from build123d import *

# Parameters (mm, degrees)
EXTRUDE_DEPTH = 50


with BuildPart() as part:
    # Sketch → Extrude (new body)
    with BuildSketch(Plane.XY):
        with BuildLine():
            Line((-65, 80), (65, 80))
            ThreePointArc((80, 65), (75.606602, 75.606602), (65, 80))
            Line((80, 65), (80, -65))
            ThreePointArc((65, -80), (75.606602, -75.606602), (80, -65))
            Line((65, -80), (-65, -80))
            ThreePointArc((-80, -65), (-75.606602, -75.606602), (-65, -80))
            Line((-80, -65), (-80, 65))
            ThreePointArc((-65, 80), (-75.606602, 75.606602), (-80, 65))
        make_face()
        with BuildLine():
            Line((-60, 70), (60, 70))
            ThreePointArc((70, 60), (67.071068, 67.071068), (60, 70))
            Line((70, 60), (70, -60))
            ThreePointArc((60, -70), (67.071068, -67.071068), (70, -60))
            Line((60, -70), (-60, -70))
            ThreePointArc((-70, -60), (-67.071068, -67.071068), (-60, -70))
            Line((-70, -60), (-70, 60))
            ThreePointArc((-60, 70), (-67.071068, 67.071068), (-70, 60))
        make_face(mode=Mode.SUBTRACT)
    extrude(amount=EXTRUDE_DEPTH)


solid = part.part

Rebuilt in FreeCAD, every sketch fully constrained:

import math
import FreeCAD as App
import Part
import Sketcher

V = App.Vector

doc = App.newDocument("Part")
body = doc.addObject("PartDesign::Body", "Body")

sketch1 = body.newObject("Sketcher::SketchObject", "Sketch")
sketch1.AttachmentSupport = (doc.getObject("XY_Plane"), [""])
sketch1.MapMode = "FlatFace"
sketch1.addGeometry([
    Part.LineSegment(V(65, 80, 0), V(-65, 80, 0)),
    Part.ArcOfCircle(Part.Circle(V(-65, 65, 0), V(0, 0, 1), 15), math.radians(90), math.radians(180)),
    Part.LineSegment(V(-80, 65, 0), V(-80, -65, 0)),
    Part.ArcOfCircle(Part.Circle(V(-65, -65, 0), V(0, 0, 1), 15), math.radians(180), math.radians(270)),
    Part.LineSegment(V(-65, -80, 0), V(65, -80, 0)),
    Part.ArcOfCircle(Part.Circle(V(65, -65, 0), V(0, 0, 1), 15), math.radians(-90), math.radians(0)),
    Part.LineSegment(V(80, -65, 0), V(80, 65, 0)),
    Part.ArcOfCircle(Part.Circle(V(65, 65, 0), V(0, 0, 1), 15), math.radians(0), math.radians(90)),
    Part.LineSegment(V(-60, 70, 0), V(60, 70, 0)),
    Part.ArcOfCircle(Part.Circle(V(60, 60, 0), V(0, 0, 1), 10), math.radians(0), math.radians(90)),
    Part.LineSegment(V(70, 60, 0), V(70, -60, 0)),
    Part.ArcOfCircle(Part.Circle(V(60, -60, 0), V(0, 0, 1), 10), math.radians(-90), math.radians(0)),
    Part.LineSegment(V(60, -70, 0), V(-60, -70, 0)),
    Part.ArcOfCircle(Part.Circle(V(-60, -60, 0), V(0, 0, 1), 10), math.radians(180), math.radians(270)),
    Part.LineSegment(V(-70, -60, 0), V(-70, 60, 0)),
    Part.ArcOfCircle(Part.Circle(V(-60, 60, 0), V(0, 0, 1), 10), math.radians(90), math.radians(180)),
], False)
sketch1.addConstraint([
    Sketcher.Constraint("Tangent", 0, 2, 1, 1),
    Sketcher.Constraint("Tangent", 1, 2, 2, 1),
    Sketcher.Constraint("Tangent", 2, 2, 3, 1),
    Sketcher.Constraint("Tangent", 3, 2, 4, 1),
    Sketcher.Constraint("Tangent", 4, 2, 5, 1),
    Sketcher.Constraint("Tangent", 5, 2, 6, 1),
    Sketcher.Constraint("Tangent", 6, 2, 7, 1),
    Sketcher.Constraint("Tangent", 7, 2, 0, 1),
    Sketcher.Constraint("Tangent", 8, 2, 9, 2),
    Sketcher.Constraint("Tangent", 9, 1, 10, 1),
    Sketcher.Constraint("Tangent", 10, 2, 11, 2),
    Sketcher.Constraint("Tangent", 11, 1, 12, 1),
    Sketcher.Constraint("Tangent", 12, 2, 13, 2),
    Sketcher.Constraint("Tangent", 13, 1, 14, 1),
    Sketcher.Constraint("Tangent", 14, 2, 15, 2),
    Sketcher.Constraint("Tangent", 15, 1, 8, 1),
    Sketcher.Constraint("Horizontal", 0),
    Sketcher.Constraint("Vertical", 2),
    Sketcher.Constraint("Horizontal", 4),
    Sketcher.Constraint("Vertical", 6),
    Sketcher.Constraint("Horizontal", 8),
    Sketcher.Constraint("Vertical", 10),
    Sketcher.Constraint("Horizontal", 12),
    Sketcher.Constraint("Vertical", 14),
    Sketcher.Constraint("Equal", 1, 3),
    Sketcher.Constraint("Equal", 3, 5),
    Sketcher.Constraint("Equal", 5, 7),
    Sketcher.Constraint("Equal", 9, 11),
    Sketcher.Constraint("Equal", 11, 13),
    Sketcher.Constraint("Equal", 13, 15),
    Sketcher.Constraint("Symmetric", 1, 3, 5, 3, -1, 1),
    Sketcher.Constraint("Symmetric", 9, 3, 13, 3, -1, 1),
    Sketcher.Constraint("Equal", 4, 2),
    Sketcher.Constraint("Equal", 12, 10),
    Sketcher.Constraint("Radius", 1, 14.999999),
    Sketcher.Constraint("Radius", 9, 9.999999),
    Sketcher.Constraint("DistanceX", 0, 2, 0, 1, 130.0),
    Sketcher.Constraint("DistanceX", 8, 1, 8, 2, 120.0),
])
pad1 = body.newObject("PartDesign::Pad", "Pad")
pad1.Profile = sketch1
pad1.Length = 50

doc.recompute()
